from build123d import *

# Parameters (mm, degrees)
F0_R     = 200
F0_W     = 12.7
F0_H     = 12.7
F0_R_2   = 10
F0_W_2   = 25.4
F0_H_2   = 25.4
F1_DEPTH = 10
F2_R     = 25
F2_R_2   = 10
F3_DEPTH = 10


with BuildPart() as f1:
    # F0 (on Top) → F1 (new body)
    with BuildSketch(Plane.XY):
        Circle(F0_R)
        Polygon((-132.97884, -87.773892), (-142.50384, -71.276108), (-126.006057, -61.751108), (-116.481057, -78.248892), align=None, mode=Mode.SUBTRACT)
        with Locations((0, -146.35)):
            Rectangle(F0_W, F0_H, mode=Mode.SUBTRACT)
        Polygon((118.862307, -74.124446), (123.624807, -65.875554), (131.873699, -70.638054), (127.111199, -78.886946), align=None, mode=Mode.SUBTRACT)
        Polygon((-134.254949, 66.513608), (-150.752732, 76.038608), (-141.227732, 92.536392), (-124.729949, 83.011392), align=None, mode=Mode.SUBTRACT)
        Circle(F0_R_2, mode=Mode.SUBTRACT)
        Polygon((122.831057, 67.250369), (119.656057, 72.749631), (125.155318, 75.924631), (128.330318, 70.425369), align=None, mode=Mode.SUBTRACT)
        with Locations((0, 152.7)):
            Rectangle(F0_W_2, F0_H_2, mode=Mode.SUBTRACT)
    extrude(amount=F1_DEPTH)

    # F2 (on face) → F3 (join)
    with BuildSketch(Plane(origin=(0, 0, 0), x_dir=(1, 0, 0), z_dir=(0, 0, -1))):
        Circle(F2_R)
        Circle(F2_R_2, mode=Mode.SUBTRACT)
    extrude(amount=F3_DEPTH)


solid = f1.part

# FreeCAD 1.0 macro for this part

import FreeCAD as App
import Part
import Sketcher
Q = App.Units.Quantity

doc = App.newDocument("Part")
body = doc.addObject("PartDesign::Body", "Body")

# Sketch on XY plane
sketch1 = doc.addObject("Sketcher::SketchObject", "Sketch")
body.addObject(sketch1)
sketch1.AttachmentSupport = (doc.XY_Plane, [""])
sketch1.MapMode = "FlatFace"
sketch1.addGeometry([
    Part.Circle(App.Vector(0, 0, 0), App.Vector(0, 0, 1), 200),  # 0
    Part.LineSegment(App.Vector(-116.481057, -78.248892, 0), App.Vector(-132.97884, -87.773892, 0)),  # 1
    Part.LineSegment(App.Vector(-132.97884, -87.773892, 0), App.Vector(-142.50384, -71.276108, 0)),  # 2
    Part.LineSegment(App.Vector(-142.50384, -71.276108, 0), App.Vector(-126.006057, -61.751108, 0)),  # 3
    Part.LineSegment(App.Vector(-126.006057, -61.751108, 0), App.Vector(-116.481057, -78.248892, 0)),  # 4
    Part.LineSegment(App.Vector(6.35, -152.7, 0), App.Vector(-6.35, -152.7, 0)),  # 5
    Part.LineSegment(App.Vector(-6.35, -152.7, 0), App.Vector(-6.35, -140, 0)),  # 6
    Part.LineSegment(App.Vector(-6.35, -140, 0), App.Vector(6.35, -140, 0)),  # 7
    Part.LineSegment(App.Vector(6.35, -140, 0), App.Vector(6.35, -152.7, 0)),  # 8
    Part.Circle(App.Vector(0, 0, 0), App.Vector(0, 0, 1), 10),  # 9
    Part.LineSegment(App.Vector(127.111199, -78.886946, 0), App.Vector(118.862307, -74.124446, 0)),  # 10
    Part.LineSegment(App.Vector(118.862307, -74.124446, 0), App.Vector(123.624807, -65.875554, 0)),  # 11
    Part.LineSegment(App.Vector(123.624807, -65.875554, 0), App.Vector(131.873699, -70.638054, 0)),  # 12
    Part.LineSegment(App.Vector(131.873699, -70.638054, 0), App.Vector(127.111199, -78.886946, 0)),  # 13
    Part.LineSegment(App.Vector(-124.729949, 83.011392, 0), App.Vector(-134.254949, 66.513608, 0)),  # 14
    Part.LineSegment(App.Vector(-134.254949, 66.513608, 0), App.Vector(-150.752732, 76.038608, 0)),  # 15
    Part.LineSegment(App.Vector(-150.752732, 76.038608, 0), App.Vector(-141.227732, 92.536392, 0)),  # 16
    Part.LineSegment(App.Vector(-141.227732, 92.536392, 0), App.Vector(-124.729949, 83.011392, 0)),  # 17
    Part.LineSegment(App.Vector(128.330318, 70.425369, 0), App.Vector(122.831057, 67.250369, 0)),  # 18
    Part.LineSegment(App.Vector(122.831057, 67.250369, 0), App.Vector(119.656057, 72.749631, 0)),  # 19
    Part.LineSegment(App.Vector(119.656057, 72.749631, 0), App.Vector(125.155318, 75.924631, 0)),  # 20
    Part.LineSegment(App.Vector(125.155318, 75.924631, 0), App.Vector(128.330318, 70.425369, 0)),  # 21
    Part.LineSegment(App.Vector(12.7, 140, 0), App.Vector(-12.7, 140, 0)),  # 22
    Part.LineSegment(App.Vector(-12.7, 140, 0), App.Vector(-12.7, 165.4, 0)),  # 23
    Part.LineSegment(App.Vector(-12.7, 165.4, 0), App.Vector(12.7, 165.4, 0)),  # 24
    Part.LineSegment(App.Vector(12.7, 165.4, 0), App.Vector(12.7, 140, 0)),  # 25
], False)
sketch1.addConstraint([
    Sketcher.Constraint("Coincident", 1, 2, 2, 1),
    Sketcher.Constraint("Coincident", 2, 2, 3, 1),
    Sketcher.Constraint("Coincident", 3, 2, 4, 1),
    Sketcher.Constraint("Coincident", 4, 2, 1, 1),
    Sketcher.Constraint("Coincident", 5, 2, 6, 1),
    Sketcher.Constraint("Coincident", 6, 2, 7, 1),
    Sketcher.Constraint("Coincident", 7, 2, 8, 1),
    Sketcher.Constraint("Coincident", 8, 2, 5, 1),
    Sketcher.Constraint("Coincident", 10, 2, 11, 1),
    Sketcher.Constraint("Coincident", 11, 2, 12, 1),
    Sketcher.Constraint("Coincident", 12, 2, 13, 1),
    Sketcher.Constraint("Coincident", 13, 2, 10, 1),
    Sketcher.Constraint("Coincident", 14, 2, 15, 1),
    Sketcher.Constraint("Coincident", 15, 2, 16, 1),
    Sketcher.Constraint("Coincident", 16, 2, 17, 1),
    Sketcher.Constraint("Coincident", 17, 2, 14, 1),
    Sketcher.Constraint("Coincident", 18, 2, 19, 1),
    Sketcher.Constraint("Coincident", 19, 2, 20, 1),
    Sketcher.Constraint("Coincident", 20, 2, 21, 1),
    Sketcher.Constraint("Coincident", 21, 2, 18, 1),
    Sketcher.Constraint("Coincident", 22, 2, 23, 1),
    Sketcher.Constraint("Coincident", 23, 2, 24, 1),
    Sketcher.Constraint("Coincident", 24, 2, 25, 1),
    Sketcher.Constraint("Coincident", 25, 2, 22, 1),
    Sketcher.Constraint("Horizontal", 5),
    Sketcher.Constraint("Vertical", 6),
    Sketcher.Constraint("Horizontal", 7),
    Sketcher.Constraint("Vertical", 8),
    Sketcher.Constraint("Horizontal", 22),
    Sketcher.Constraint("Vertical", 23),
    Sketcher.Constraint("Horizontal", 24),
    Sketcher.Constraint("Vertical", 25),
    Sketcher.Constraint("Coincident", 0, 3, -1, 1),
    Sketcher.Constraint("Coincident", 9, 3, -1, 1),
    Sketcher.Constraint("Perpendicular", 1, 2),
    Sketcher.Constraint("Perpendicular", 2, 3),
    Sketcher.Constraint("Perpendicular", 3, 4),
    Sketcher.Constraint("Perpendicular", 10, 11),
    Sketcher.Constraint("Perpendicular", 11, 12),
    Sketcher.Constraint("Perpendicular", 12, 13),
    Sketcher.Constraint("Parallel", 13, 14),
    Sketcher.Constraint("Perpendicular", 14, 15),
    Sketcher.Constraint("Perpendicular", 15, 16),
    Sketcher.Constraint("Perpendicular", 16, 17),
    Sketcher.Constraint("Perpendicular", 4, 18),
    Sketcher.Constraint("Perpendicular", 18, 19),
    Sketcher.Constraint("Perpendicular", 19, 20),
    Sketcher.Constraint("Perpendicular", 20, 21),
    Sketcher.Constraint("Equal", 7, 6),
    Sketcher.Constraint("Equal", 24, 23),
    Sketcher.Constraint("Equal", 1, 2),
    Sketcher.Constraint("Equal", 10, 11),
    Sketcher.Constraint("Equal", 4, 14),
    Sketcher.Constraint("Equal", 14, 15),
    Sketcher.Constraint("Equal", 18, 19),
    Sketcher.Constraint("DistanceX", 22, 2, 22, 1, Q("1 in")),
    Sketcher.Constraint("DistanceX", 5, 2, 5, 1, Q("0.5 in")),
    Sketcher.Constraint("Angle", 1, Q("-149.999999 deg")),
    Sketcher.Constraint("Angle", 10, Q("150 deg")),
    Sketcher.Constraint("DistanceX", 22, 2, -1, 1, Q("0.5 in")),
    Sketcher.Constraint("Distance", 1, Q("0.75 in")),
    Sketcher.Constraint("Distance", 18, Q("0.25 in")),
    Sketcher.Constraint("Diameter", 0, Q("400 mm")),
    Sketcher.Constraint("Diameter", 9, Q("20 mm")),
    Sketcher.Constraint("DistanceX", 5, 2, -1, 1, Q("0.25 in")),
    Sketcher.Constraint("Distance", 10, Q("0.375 in")),
    Sketcher.Constraint("DistanceX", 18, 2, 11, 2, Q("0.03125 in")),
    Sketcher.Constraint("DistanceY", 5, 2, -1, 1, Q("152.7 mm")),
    Sketcher.Constraint("DistanceX", -1, 1, 12, 2, Q("131.873699 mm")),
    Sketcher.Constraint("DistanceY", -1, 1, 22, 2, Q("140 mm")),
    Sketcher.Constraint("DistanceY", 4, 2, 14, 2, Q("144.7625 mm")),
    Sketcher.Constraint("DistanceX", 1, 2, -1, 1, Q("132.97884 mm")),
    Sketcher.Constraint("DistanceY", 3, 2, -1, 1, Q("61.751108 mm")),
    Sketcher.Constraint("DistanceX", 14, 2, -1, 1, Q("134.254949 mm")),
    Sketcher.Constraint("DistanceY", -1, 1, 18, 2, Q("67.250369 mm")),
    Sketcher.Constraint("DistanceY", 10, 2, -1, 1, Q("74.124446 mm")),
])
pad1 = doc.addObject("PartDesign::Pad", "Pad")
body.addObject(pad1)
pad1.Profile = sketch1
pad1.Length = 10

# Sketch on XY plane
sketch2 = doc.addObject("Sketcher::SketchObject", "Sketch001")
body.addObject(sketch2)
sketch2.AttachmentSupport = (doc.XY_Plane, [""])
sketch2.MapMode = "FlatFace"
sketch2.addGeometry([
    Part.Circle(App.Vector(0, 0, 0), App.Vector(0, 0, 1), 25),
    Part.Circle(App.Vector(0, 0, 0), App.Vector(0, 0, 1), 10),
], False)
sketch2.addConstraint([
    Sketcher.Constraint("Coincident", 0, 3, -1, 1),
    Sketcher.Constraint("Coincident", 1, 3, -1, 1),
    Sketcher.Constraint("Diameter", 0, Q("50 mm")),
    Sketcher.Constraint("Diameter", 1, Q("20 mm")),
])
pad2 = doc.addObject("PartDesign::Pad", "Pad001")
body.addObject(pad2)
pad2.Profile = sketch2
pad2.Length = 10
pad2.Reversed = True

doc.recompute()
